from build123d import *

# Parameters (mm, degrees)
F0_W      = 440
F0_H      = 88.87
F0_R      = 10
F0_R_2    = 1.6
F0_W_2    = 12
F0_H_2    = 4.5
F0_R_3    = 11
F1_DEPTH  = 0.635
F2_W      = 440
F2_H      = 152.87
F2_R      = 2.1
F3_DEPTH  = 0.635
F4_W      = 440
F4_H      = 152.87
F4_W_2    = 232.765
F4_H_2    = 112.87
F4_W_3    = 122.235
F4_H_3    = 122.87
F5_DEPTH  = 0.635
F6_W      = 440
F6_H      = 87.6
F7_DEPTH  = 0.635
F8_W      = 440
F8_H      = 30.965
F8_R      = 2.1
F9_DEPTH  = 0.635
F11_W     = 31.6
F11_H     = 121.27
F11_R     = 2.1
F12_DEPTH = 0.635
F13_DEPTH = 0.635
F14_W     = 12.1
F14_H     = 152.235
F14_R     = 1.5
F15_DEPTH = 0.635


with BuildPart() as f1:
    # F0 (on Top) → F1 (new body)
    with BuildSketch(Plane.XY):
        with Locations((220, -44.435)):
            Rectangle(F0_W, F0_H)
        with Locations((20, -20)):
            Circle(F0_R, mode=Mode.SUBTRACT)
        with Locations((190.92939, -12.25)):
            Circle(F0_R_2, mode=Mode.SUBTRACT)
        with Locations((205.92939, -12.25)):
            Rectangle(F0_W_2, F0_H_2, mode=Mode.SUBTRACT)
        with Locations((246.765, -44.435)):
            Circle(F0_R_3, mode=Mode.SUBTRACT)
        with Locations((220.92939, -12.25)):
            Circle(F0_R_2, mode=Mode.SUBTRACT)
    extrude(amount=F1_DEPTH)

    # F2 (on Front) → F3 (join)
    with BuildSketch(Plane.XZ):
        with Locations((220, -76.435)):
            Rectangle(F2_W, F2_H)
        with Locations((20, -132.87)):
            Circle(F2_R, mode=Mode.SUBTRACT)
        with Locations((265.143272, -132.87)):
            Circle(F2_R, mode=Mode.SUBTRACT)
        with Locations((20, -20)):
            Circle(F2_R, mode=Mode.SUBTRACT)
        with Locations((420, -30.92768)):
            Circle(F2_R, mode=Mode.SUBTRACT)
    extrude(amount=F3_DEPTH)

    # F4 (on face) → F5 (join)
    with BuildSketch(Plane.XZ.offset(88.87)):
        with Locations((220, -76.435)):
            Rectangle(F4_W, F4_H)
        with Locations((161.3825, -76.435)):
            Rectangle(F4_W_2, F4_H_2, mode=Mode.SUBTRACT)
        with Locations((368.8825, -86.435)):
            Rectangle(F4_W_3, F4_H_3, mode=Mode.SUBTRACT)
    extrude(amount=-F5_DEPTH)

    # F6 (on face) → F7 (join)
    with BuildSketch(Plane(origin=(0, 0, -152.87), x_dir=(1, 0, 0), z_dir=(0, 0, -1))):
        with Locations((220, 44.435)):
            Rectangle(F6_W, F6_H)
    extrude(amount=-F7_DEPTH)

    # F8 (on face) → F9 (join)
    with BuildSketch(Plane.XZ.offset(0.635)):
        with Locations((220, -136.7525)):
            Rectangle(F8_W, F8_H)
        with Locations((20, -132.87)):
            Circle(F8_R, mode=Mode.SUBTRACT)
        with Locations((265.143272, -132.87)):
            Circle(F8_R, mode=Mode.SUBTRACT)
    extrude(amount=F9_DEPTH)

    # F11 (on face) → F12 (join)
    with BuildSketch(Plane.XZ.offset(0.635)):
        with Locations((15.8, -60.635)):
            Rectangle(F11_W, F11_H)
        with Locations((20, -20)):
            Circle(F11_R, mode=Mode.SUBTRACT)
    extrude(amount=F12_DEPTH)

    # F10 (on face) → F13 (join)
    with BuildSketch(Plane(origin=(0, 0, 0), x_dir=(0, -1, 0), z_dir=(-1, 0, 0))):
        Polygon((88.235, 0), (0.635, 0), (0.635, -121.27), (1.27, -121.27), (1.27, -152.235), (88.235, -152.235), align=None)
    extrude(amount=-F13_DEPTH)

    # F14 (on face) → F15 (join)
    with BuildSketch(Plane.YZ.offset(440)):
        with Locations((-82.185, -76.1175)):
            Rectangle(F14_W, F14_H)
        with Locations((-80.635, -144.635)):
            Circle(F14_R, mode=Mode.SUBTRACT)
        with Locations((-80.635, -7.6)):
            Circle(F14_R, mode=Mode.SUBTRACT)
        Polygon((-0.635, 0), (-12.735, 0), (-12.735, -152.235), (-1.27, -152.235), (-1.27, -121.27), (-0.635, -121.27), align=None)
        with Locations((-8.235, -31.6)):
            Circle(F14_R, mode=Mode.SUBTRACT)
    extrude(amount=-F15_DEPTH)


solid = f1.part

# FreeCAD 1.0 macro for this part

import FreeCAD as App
import Part
import Sketcher
from FreeCAD import Vector


def add_polygon(sketch, points):
    """Adds a closed chain of lines whose ends are joined by coincident constraints."""
    first, n = sketch.GeometryCount, len(points)
    for a, b in zip(points, points[1:] + points[:1]):
        sketch.addGeometry(Part.LineSegment(App.Vector(*a, 0), App.Vector(*b, 0)), False)
    for i in range(n):
        sketch.addConstraint(Sketcher.Constraint("Coincident", first + i, 2, first + (i + 1) % n, 1))

doc = App.newDocument("Part")
body = doc.addObject("PartDesign::Body", "Body")

# Sketch on XY plane
sketch1 = body.newObject("Sketcher::SketchObject", "Sketch")
sketch1.AttachmentSupport = (doc.getObject("XY_Plane"), [""])
sketch1.MapMode = "FlatFace"
add_polygon(sketch1, [(0, 0), (0, -88.87), (440, -88.87), (440, 0)])  # lines 0-3
sketch1.addGeometry(Part.Circle(Vector(246.765, -44.435, 0), Vector(0, 0, 1), 11), False)  # 4
sketch1.addGeometry(Part.Circle(Vector(20, -20, 0), Vector(0, 0, 1), 10), False)  # 5
sketch1.addGeometry(Part.Circle(Vector(190.92939, -12.25, 0), Vector(0, 0, 1), 1.6), False)  # 6
add_polygon(sketch1, [(211.92939, -14.5), (199.92939, -14.5), (199.92939, -10), (211.92939, -10)])  # lines 7-10
sketch1.addGeometry(Part.Circle(Vector(220.92939, -12.25, 0), Vector(0, 0, 1), 1.6), False)  # 11
sketch1.addConstraint([
    Sketcher.Constraint("Vertical", 0),
    Sketcher.Constraint("Horizontal", 1),
    Sketcher.Constraint("Vertical", 2),
    Sketcher.Constraint("Horizontal", 3),
    Sketcher.Constraint("Horizontal", 7),
    Sketcher.Constraint("Vertical", 8),
    Sketcher.Constraint("Horizontal", 9),
    Sketcher.Constraint("Vertical", 10),
    Sketcher.Constraint("Coincident", 3, 2, -1, 1),
    Sketcher.Constraint("Equal", 6, 11),
    Sketcher.Constraint("Horizontal", 6, 3, 11, 3),
    Sketcher.Constraint("Diameter", 4, 22.0),
    Sketcher.Constraint("Diameter", 5, 20.0),
    Sketcher.Constraint("Diameter", 6, 3.2),
    Sketcher.Constraint("DistanceX", 1, 1, 1, 2, 440.0),
    Sketcher.Constraint("DistanceX", 7, 2, 7, 1, 12.0),
    Sketcher.Constraint("DistanceY", 8, 1, 8, 2, 4.5),
    Sketcher.Constraint("DistanceX", -1, 1, 5, 3, 20.0),
    Sketcher.Constraint("DistanceY", 5, 3, -1, 1, 20.0),
    Sketcher.Constraint("DistanceY", 8, 2, -1, 1, 10.0),
    Sketcher.Constraint("DistanceX", 6, 3, 11, 3, 30.0),
    Sketcher.Constraint("DistanceX", 6, 3, 7, 2, 9.0),
    Sketcher.Constraint("DistanceY", 0, 2, 0, 1, 88.87),
    Sketcher.Constraint("DistanceY", 6, 3, -1, 1, 12.25),
    Sketcher.Constraint("DistanceX", -1, 1, 4, 3, 246.765),
    Sketcher.Constraint("DistanceY", 4, 3, -1, 1, 44.435),
    Sketcher.Constraint("DistanceX", -1, 1, 6, 3, 190.92939),
])
pad1 = body.newObject("PartDesign::Pad", "Pad")
pad1.Profile = sketch1
pad1.Length = 0.635

# Sketch on XZ plane
sketch2 = body.newObject("Sketcher::SketchObject", "Sketch001")
sketch2.AttachmentSupport = (doc.getObject("XZ_Plane"), [""])
sketch2.MapMode = "FlatFace"
add_polygon(sketch2, [(0, 0), (0, -152.87), (440, -152.87), (440, 0)])  # lines 0-3
sketch2.addGeometry(Part.Circle(Vector(20, -132.87, 0), Vector(0, 0, 1), 2.1), False)  # 4
sketch2.addGeometry(Part.Circle(Vector(265.143272, -132.87, 0), Vector(0, 0, 1), 2.1), False)  # 5
sketch2.addGeometry(Part.Circle(Vector(20, -20, 0), Vector(0, 0, 1), 2.1), False)  # 6
sketch2.addGeometry(Part.Circle(Vector(420, -30.92768, 0), Vector(0, 0, 1), 2.1), False)  # 7
sketch2.addConstraint([
    Sketcher.Constraint("Vertical", 0),
    Sketcher.Constraint("Horizontal", 1),
    Sketcher.Constraint("Vertical", 2),
    Sketcher.Constraint("Horizontal", 3),
    Sketcher.Constraint("Coincident", 3, 2, -1, 1),
    Sketcher.Constraint("Equal", 4, 5),
    Sketcher.Constraint("Equal", 5, 6),
    Sketcher.Constraint("Equal", 6, 7),
    Sketcher.Constraint("Horizontal", 4, 3, 5, 3),
    Sketcher.Constraint("Vertical", 4, 3, 6, 3),
    Sketcher.Constraint("Diameter", 4, 4.2),
    Sketcher.Constraint("DistanceX", 1, 1, 1, 2, 440.0),
    Sketcher.Constraint("DistanceX", -1, 1, 4, 3, 20.0),
    Sketcher.Constraint("DistanceY", 6, 3, -1, 1, 20.0),
    Sketcher.Constraint("DistanceX", -1, 1, 7, 3, 420.0),
    Sketcher.Constraint("DistanceY", 0, 2, 4, 3, 20.0),
    Sketcher.Constraint("DistanceY", 0, 2, 0, 1, 152.87),
    Sketcher.Constraint("DistanceY", 7, 3, -1, 1, 30.92768),
    Sketcher.Constraint("DistanceX", -1, 1, 5, 3, 265.143272),
])
pad2 = body.newObject("PartDesign::Pad", "Pad001")
pad2.Profile = sketch2
pad2.Length = 0.635

# Sketch on XZ plane
sketch3 = body.newObject("Sketcher::SketchObject", "Sketch002")
sketch3.AttachmentSupport = (doc.getObject("XZ_Plane"), [""])
sketch3.MapMode = "FlatFace"
sketch3.AttachmentOffset = App.Placement(Vector(0, 0, 88.87), App.Rotation())
add_polygon(sketch3, [(0, 0), (0, -152.87), (440, -152.87), (440, 0)])  # lines 0-3
add_polygon(sketch3, [(430, -147.87), (307.765, -147.87), (307.765, -25), (430, -25)])  # lines 4-7
add_polygon(sketch3, [(277.765, -132.87), (45, -132.87), (45, -20), (277.765, -20)])  # lines 8-11
sketch3.addConstraint([
    Sketcher.Constraint("Vertical", 0),
    Sketcher.Constraint("Horizontal", 1),
    Sketcher.Constraint("Vertical", 2),
    Sketcher.Constraint("Horizontal", 3),
    Sketcher.Constraint("Horizontal", 4),
    Sketcher.Constraint("Vertical", 5),
    Sketcher.Constraint("Horizontal", 6),
    Sketcher.Constraint("Vertical", 7),
    Sketcher.Constraint("Horizontal", 8),
    Sketcher.Constraint("Vertical", 9),
    Sketcher.Constraint("Horizontal", 10),
    Sketcher.Constraint("Vertical", 11),
    Sketcher.Constraint("Coincident", 3, 2, -1, 1),
    Sketcher.Constraint("DistanceX", 1, 1, 1, 2, 440.0),
    Sketcher.Constraint("DistanceY", 5, 2, -1, 1, 25.0),
    Sketcher.Constraint("DistanceX", -1, 1, 6, 2, 430.0),
    Sketcher.Constraint("DistanceX", -1, 1, 8, 2, 45.0),
    Sketcher.Constraint("DistanceY", 9, 2, -1, 1, 20.0),
    Sketcher.Constraint("DistanceY", 1, 2, 4, 2, 5.0),
    Sketcher.Constraint("DistanceY", 0, 2, 8, 2, 20.0),
    Sketcher.Constraint("DistanceX", 10, 2, 5, 2, 30.0),
    Sketcher.Constraint("DistanceY", 0, 2, 0, 1, 152.87),
    Sketcher.Constraint("DistanceX", 4, 2, 4, 1, 122.235),
])
pad3 = body.newObject("PartDesign::Pad", "Pad002")
pad3.Profile = sketch3
pad3.Length = 0.635
pad3.Reversed = True

# Sketch on XY plane
sketch4 = body.newObject("Sketcher::SketchObject", "Sketch003")
sketch4.AttachmentSupport = (doc.getObject("XY_Plane"), [""])
sketch4.MapMode = "FlatFace"
sketch4.AttachmentOffset = App.Placement(Vector(0, 0, -152.87), App.Rotation())
add_polygon(sketch4, [(0, -88.235), (0, -0.635), (440, -0.635), (440, -88.235)])  # lines 0-3
sketch4.addConstraint([
    Sketcher.Constraint("Vertical", 0),
    Sketcher.Constraint("Horizontal", 1),
    Sketcher.Constraint("Vertical", 2),
    Sketcher.Constraint("Horizontal", 3),
    Sketcher.Constraint("PointOnObject", 0, 2, -2),
    Sketcher.Constraint("DistanceX", 1, 1, 1, 2, 440.0),
    Sketcher.Constraint("DistanceY", 0, 1, 0, 2, 87.6),
    Sketcher.Constraint("DistanceY", 0, 2, -1, 1, 0.635),
])
pad4 = body.newObject("PartDesign::Pad", "Pad003")
pad4.Profile = sketch4
pad4.Length = 0.635

# Sketch on XZ plane
sketch5 = body.newObject("Sketcher::SketchObject", "Sketch004")
sketch5.AttachmentSupport = (doc.getObject("XZ_Plane"), [""])
sketch5.MapMode = "FlatFace"
sketch5.AttachmentOffset = App.Placement(Vector(0, 0, 0.635), App.Rotation())
add_polygon(sketch5, [(0, -121.27), (0, -152.235), (440, -152.235), (440, -121.27)])  # lines 0-3
sketch5.addGeometry(Part.Circle(Vector(20, -132.87, 0), Vector(0, 0, 1), 2.1), False)  # 4
sketch5.addGeometry(Part.Circle(Vector(265.143272, -132.87, 0), Vector(0, 0, 1), 2.1), False)  # 5
sketch5.addConstraint([
    Sketcher.Constraint("Vertical", 0),
    Sketcher.Constraint("Horizontal", 1),
    Sketcher.Constraint("Vertical", 2),
    Sketcher.Constraint("Horizontal", 3),
    Sketcher.Constraint("Equal", 4, 5),
    Sketcher.Constraint("PointOnObject", 0, 2, -2),
    Sketcher.Constraint("Horizontal", 4, 3, 5, 3),
    Sketcher.Constraint("Diameter", 4, 4.2),
    Sketcher.Constraint("DistanceX", 1, 1, 1, 2, 440.0),
    Sketcher.Constraint("DistanceX", -1, 1, 4, 3, 20.0),
    Sketcher.Constraint("DistanceY", 5, 3, 2, 2, 11.6),
    Sketcher.Constraint("DistanceY", 0, 2, 0, 1, 30.965),
    Sketcher.Constraint("DistanceY", 4, 3, -1, 1, 132.87),
    Sketcher.Constraint("DistanceX", -1, 1, 5, 3, 265.143272),
])
pad5 = body.newObject("PartDesign::Pad", "Pad004")
pad5.Profile = sketch5
pad5.Length = 0.635

# Sketch on XZ plane
sketch6 = body.newObject("Sketcher::SketchObject", "Sketch005")
sketch6.AttachmentSupport = (doc.getObject("XZ_Plane"), [""])
sketch6.MapMode = "FlatFace"
sketch6.AttachmentOffset = App.Placement(Vector(0, 0, 0.635), App.Rotation())
add_polygon(sketch6, [(0, 0), (0, -121.27), (31.6, -121.27), (31.6, 0)])  # lines 0-3
sketch6.addGeometry(Part.Circle(Vector(20, -20, 0), Vector(0, 0, 1), 2.1), False)  # 4
sketch6.addConstraint([
    Sketcher.Constraint("Vertical", 0),
    Sketcher.Constraint("Horizontal", 1),
    Sketcher.Constraint("Vertical", 2),
    Sketcher.Constraint("Horizontal", 3),
    Sketcher.Constraint("Coincident", 3, 2, -1, 1),
    Sketcher.Constraint("Diameter", 4, 4.2),
    Sketcher.Constraint("DistanceX", 1, 1, 1, 2, 31.6),
    Sketcher.Constraint("DistanceX", -1, 1, 4, 3, 20.0),
    Sketcher.Constraint("DistanceY", 4, 3, -1, 1, 20.0),
    Sketcher.Constraint("DistanceY", 0, 2, 0, 1, 121.27),
])
pad6 = body.newObject("PartDesign::Pad", "Pad005")
pad6.Profile = sketch6
pad6.Length = 0.635

# Sketch on YZ plane
sketch7 = body.newObject("Sketcher::SketchObject", "Sketch006")
sketch7.AttachmentSupport = (doc.getObject("YZ_Plane"), [""])
sketch7.MapMode = "FlatFace"
add_polygon(sketch7, [(-88.235, 0), (-0.635, 0), (-0.635, -121.27), (-1.27, -121.27), (-1.27, -152.235), (-88.235, -152.235)])  # lines 0-5
sketch7.addConstraint([
    Sketcher.Constraint("Horizontal", 0),
    Sketcher.Constraint("Vertical", 1),
    Sketcher.Constraint("Horizontal", 2),
    Sketcher.Constraint("Vertical", 3),
    Sketcher.Constraint("Horizontal", 4),
    Sketcher.Constraint("Vertical", 5),
    Sketcher.Constraint("PointOnObject", 0, 2, -1),
    Sketcher.Constraint("DistanceX", 0, 1, 0, 2, 87.6),
    Sketcher.Constraint("DistanceY", 1, 2, 1, 1, 121.27),
    Sketcher.Constraint("DistanceX", 2, 2, 2, 1, 0.635),
    Sketcher.Constraint("DistanceY", 3, 2, 3, 1, 30.965),
    Sketcher.Constraint("DistanceX", 2, 2, -1, 1, 1.27),
])
pad7 = body.newObject("PartDesign::Pad", "Pad006")
pad7.Profile = sketch7
pad7.Length = 0.635

# Sketch on YZ plane
sketch8 = body.newObject("Sketcher::SketchObject", "Sketch007")
sketch8.AttachmentSupport = (doc.getObject("YZ_Plane"), [""])
sketch8.MapMode = "FlatFace"
sketch8.AttachmentOffset = App.Placement(Vector(0, 0, 440), App.Rotation())
add_polygon(sketch8, [(-88.235, 0), (-88.235, -152.235), (-76.135, -152.235), (-76.135, 0)])  # lines 0-3
sketch8.addGeometry(Part.Circle(Vector(-80.635, -144.635, 0), Vector(0, 0, 1), 1.5), False)  # 4
sketch8.addGeometry(Part.Circle(Vector(-80.635, -7.6, 0), Vector(0, 0, 1), 1.5), False)  # 5
add_polygon(sketch8, [(-0.635, 0), (-12.735, 0), (-12.735, -152.235), (-1.27, -152.235), (-1.27, -121.27), (-0.635, -121.27)])  # lines 6-11
sketch8.addGeometry(Part.Circle(Vector(-8.235, -31.6, 0), Vector(0, 0, 1), 1.5), False)  # 12
sketch8.addConstraint([
    Sketcher.Constraint("Vertical", 0),
    Sketcher.Constraint("Horizontal", 1),
    Sketcher.Constraint("Vertical", 2),
    Sketcher.Constraint("Horizontal", 3),
    Sketcher.Constraint("Horizontal", 6),
    Sketcher.Constraint("Vertical", 7),
    Sketcher.Constraint("Horizontal", 8),
    Sketcher.Constraint("Vertical", 9),
    Sketcher.Constraint("Horizontal", 10),
    Sketcher.Constraint("Vertical", 11),
    Sketcher.Constraint("Equal", 4, 5),
    Sketcher.Constraint("Equal", 5, 12),
    Sketcher.Constraint("PointOnObject", 2, 2, -1),
    Sketcher.Constraint("PointOnObject", 6, 2, -1),
    Sketcher.Constraint("Horizontal", 1, 2, 7, 2),
    Sketcher.Constraint("Vertical", 4, 3, 5, 3),
    Sketcher.Constraint("Equal", 3, 6),
    Sketcher.Constraint("Diameter", 4, 3.0),
    Sketcher.Constraint("DistanceX", 1, 1, 1, 2, 12.1),
    Sketcher.Constraint("DistanceY", 12, 3, 5, 3, 24.0),
    Sketcher.Constraint("DistanceX", 0, 2, 12, 3, 80.0),
    Sketcher.Constraint("DistanceX", 4, 3, 10, 2, 80.0),
    Sketcher.Constraint("DistanceY", 11, 1, 11, 2, 121.27),
    Sketcher.Constraint("DistanceY", 5, 3, -1, 1, 7.6),
    Sketcher.Constraint("DistanceX", 5, 3, 12, 3, 72.4),
    Sketcher.Constraint("DistanceY", 0, 2, 4, 3, 7.6),
    Sketcher.Constraint("DistanceX", 8, 1, 8, 2, 11.465),
    Sketcher.Constraint("DistanceY", 0, 2, 0, 1, 152.235),
    Sketcher.Constraint("DistanceX", 8, 2, -1, 1, 1.27),
])
pad8 = body.newObject("PartDesign::Pad", "Pad007")
pad8.Profile = sketch8
pad8.Length = 0.635
pad8.Reversed = True

doc.recompute()
